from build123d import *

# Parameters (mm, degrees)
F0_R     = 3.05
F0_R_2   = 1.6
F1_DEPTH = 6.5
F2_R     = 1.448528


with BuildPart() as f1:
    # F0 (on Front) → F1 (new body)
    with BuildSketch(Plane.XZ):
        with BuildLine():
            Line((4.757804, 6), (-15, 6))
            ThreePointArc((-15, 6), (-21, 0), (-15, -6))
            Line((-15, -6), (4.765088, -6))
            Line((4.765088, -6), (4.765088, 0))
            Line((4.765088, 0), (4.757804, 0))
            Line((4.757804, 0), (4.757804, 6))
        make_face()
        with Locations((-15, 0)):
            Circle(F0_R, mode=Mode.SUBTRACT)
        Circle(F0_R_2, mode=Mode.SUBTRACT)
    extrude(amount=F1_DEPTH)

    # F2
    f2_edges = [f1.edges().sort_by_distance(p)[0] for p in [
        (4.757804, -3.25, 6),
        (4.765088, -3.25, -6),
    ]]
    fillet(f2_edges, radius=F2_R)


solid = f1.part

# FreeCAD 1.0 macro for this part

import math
import FreeCAD as App
import Part
import Sketcher


def edges_at(feature, points):
    """Names of the edges that pass closest to the given points."""
    edges = feature.Shape.Edges
    near = lambda p: min(range(len(edges)), key=lambda i: edges[i].distToShape(Part.Vertex(*p))[0])
    return sorted({f"Edge{near(p) + 1}" for p in points})

doc = App.newDocument("Part")
params = doc.addObject("Spreadsheet::Sheet", "Params")
for row, (alias, value) in enumerate([
    ("sketch1_radius", "6 mm"),
    ("sketch1_diameter", "6.1 mm"),
    ("sketch1_diameter2", "3.2 mm"),
    ("pad1_length", "6.5 mm"),
    ("fillet_radius", "1.448528 mm"),
], start=1):
    params.set(f"A{row}", alias)
    params.set(f"B{row}", "=" + value)
    params.setAlias(f"B{row}", alias)

body = doc.addObject("PartDesign::Body", "Body")

sketch1 = body.newObject("Sketcher::SketchObject", "Sketch")
sketch1.AttachmentSupport = (doc.getObject("XZ_Plane"), [""])
sketch1.MapMode = "FlatFace"
sketch1.addGeometry(Part.LineSegment(App.Vector(4.758, 6, 0), App.Vector(-15, 6, 0)), False)
sketch1.addGeometry(Part.ArcOfCircle(Part.Circle(App.Vector(-15, 0, 0), App.Vector(0, 0, 1), 6), math.radians(90), math.radians(270)), False)
sketch1.addGeometry(Part.LineSegment(App.Vector(-15, -6, 0), App.Vector(4.765, -6, 0)), False)
sketch1.addGeometry(Part.LineSegment(App.Vector(4.765, -6, 0), App.Vector(4.765, 0, 0)), False)
sketch1.addGeometry(Part.LineSegment(App.Vector(4.765, 0, 0), App.Vector(4.758, 0, 0)), False)
sketch1.addGeometry(Part.LineSegment(App.Vector(4.758, 0, 0), App.Vector(4.758, 6, 0)), False)
sketch1.addGeometry(Part.Circle(App.Vector(-15, 0, 0), App.Vector(0, 0, 1), 3.05), False)
sketch1.addGeometry(Part.Circle(App.Vector(0, 0, 0), App.Vector(0, 0, 1), 1.6), False)
sketch1.addConstraint(Sketcher.Constraint("Tangent", 0, 2, 1, 1))
sketch1.addConstraint(Sketcher.Constraint("Tangent", 1, 2, 2, 1))
sketch1.addConstraint(Sketcher.Constraint("Coincident", 2, 2, 3, 1))
sketch1.addConstraint(Sketcher.Constraint("Coincident", 3, 2, 4, 1))
sketch1.addConstraint(Sketcher.Constraint("Coincident", 4, 2, 5, 1))
sketch1.addConstraint(Sketcher.Constraint("Coincident", 5, 2, 0, 1))
sketch1.addConstraint(Sketcher.Constraint("Horizontal", 0))
sketch1.addConstraint(Sketcher.Constraint("Horizontal", 2))
sketch1.addConstraint(Sketcher.Constraint("Vertical", 3))
sketch1.addConstraint(Sketcher.Constraint("Horizontal", 4))
sketch1.addConstraint(Sketcher.Constraint("Vertical", 5))
sketch1.addConstraint(Sketcher.Constraint("Coincident", 7, 3, -1, 1))
sketch1.addConstraint(Sketcher.Constraint("Coincident", 6, 3, 1, 3))
sketch1.addConstraint(Sketcher.Constraint("PointOnObject", 1, 3, -1))
sketch1.addConstraint(Sketcher.Constraint("PointOnObject", 3, 2, -1))
sketch1.addConstraint(Sketcher.Constraint("Radius", 1, 6.0))
sketch1.addConstraint(Sketcher.Constraint("Diameter", 6, 6.1))
sketch1.addConstraint(Sketcher.Constraint("Diameter", 7, 3.2))
sketch1.addConstraint(Sketcher.Constraint("DistanceX", 1, 3, -1, 1, 15.0))
sketch1.addConstraint(Sketcher.Constraint("DistanceX", 0, 2, 0, 1, 19.757804))
sketch1.addConstraint(Sketcher.Constraint("DistanceX", 2, 1, 2, 2, 19.765088))
sketch1.setExpression("Constraints[15]", "Params.sketch1_radius")
sketch1.setExpression("Constraints[16]", "Params.sketch1_diameter")
sketch1.setExpression("Constraints[17]", "Params.sketch1_diameter2")
pad1 = body.newObject("PartDesign::Pad", "Pad")
pad1.Profile = sketch1
pad1.setExpression("Length", "Params.pad1_length")
doc.recompute()

fillet = body.newObject("PartDesign::Fillet", "Fillet")
fillet.Base = (pad1, edges_at(pad1, [(4.758, -3.25, 6), (4.765, -3.25, -6)]))
fillet.setExpression("Radius", "Params.fillet_radius")

doc.recompute()
